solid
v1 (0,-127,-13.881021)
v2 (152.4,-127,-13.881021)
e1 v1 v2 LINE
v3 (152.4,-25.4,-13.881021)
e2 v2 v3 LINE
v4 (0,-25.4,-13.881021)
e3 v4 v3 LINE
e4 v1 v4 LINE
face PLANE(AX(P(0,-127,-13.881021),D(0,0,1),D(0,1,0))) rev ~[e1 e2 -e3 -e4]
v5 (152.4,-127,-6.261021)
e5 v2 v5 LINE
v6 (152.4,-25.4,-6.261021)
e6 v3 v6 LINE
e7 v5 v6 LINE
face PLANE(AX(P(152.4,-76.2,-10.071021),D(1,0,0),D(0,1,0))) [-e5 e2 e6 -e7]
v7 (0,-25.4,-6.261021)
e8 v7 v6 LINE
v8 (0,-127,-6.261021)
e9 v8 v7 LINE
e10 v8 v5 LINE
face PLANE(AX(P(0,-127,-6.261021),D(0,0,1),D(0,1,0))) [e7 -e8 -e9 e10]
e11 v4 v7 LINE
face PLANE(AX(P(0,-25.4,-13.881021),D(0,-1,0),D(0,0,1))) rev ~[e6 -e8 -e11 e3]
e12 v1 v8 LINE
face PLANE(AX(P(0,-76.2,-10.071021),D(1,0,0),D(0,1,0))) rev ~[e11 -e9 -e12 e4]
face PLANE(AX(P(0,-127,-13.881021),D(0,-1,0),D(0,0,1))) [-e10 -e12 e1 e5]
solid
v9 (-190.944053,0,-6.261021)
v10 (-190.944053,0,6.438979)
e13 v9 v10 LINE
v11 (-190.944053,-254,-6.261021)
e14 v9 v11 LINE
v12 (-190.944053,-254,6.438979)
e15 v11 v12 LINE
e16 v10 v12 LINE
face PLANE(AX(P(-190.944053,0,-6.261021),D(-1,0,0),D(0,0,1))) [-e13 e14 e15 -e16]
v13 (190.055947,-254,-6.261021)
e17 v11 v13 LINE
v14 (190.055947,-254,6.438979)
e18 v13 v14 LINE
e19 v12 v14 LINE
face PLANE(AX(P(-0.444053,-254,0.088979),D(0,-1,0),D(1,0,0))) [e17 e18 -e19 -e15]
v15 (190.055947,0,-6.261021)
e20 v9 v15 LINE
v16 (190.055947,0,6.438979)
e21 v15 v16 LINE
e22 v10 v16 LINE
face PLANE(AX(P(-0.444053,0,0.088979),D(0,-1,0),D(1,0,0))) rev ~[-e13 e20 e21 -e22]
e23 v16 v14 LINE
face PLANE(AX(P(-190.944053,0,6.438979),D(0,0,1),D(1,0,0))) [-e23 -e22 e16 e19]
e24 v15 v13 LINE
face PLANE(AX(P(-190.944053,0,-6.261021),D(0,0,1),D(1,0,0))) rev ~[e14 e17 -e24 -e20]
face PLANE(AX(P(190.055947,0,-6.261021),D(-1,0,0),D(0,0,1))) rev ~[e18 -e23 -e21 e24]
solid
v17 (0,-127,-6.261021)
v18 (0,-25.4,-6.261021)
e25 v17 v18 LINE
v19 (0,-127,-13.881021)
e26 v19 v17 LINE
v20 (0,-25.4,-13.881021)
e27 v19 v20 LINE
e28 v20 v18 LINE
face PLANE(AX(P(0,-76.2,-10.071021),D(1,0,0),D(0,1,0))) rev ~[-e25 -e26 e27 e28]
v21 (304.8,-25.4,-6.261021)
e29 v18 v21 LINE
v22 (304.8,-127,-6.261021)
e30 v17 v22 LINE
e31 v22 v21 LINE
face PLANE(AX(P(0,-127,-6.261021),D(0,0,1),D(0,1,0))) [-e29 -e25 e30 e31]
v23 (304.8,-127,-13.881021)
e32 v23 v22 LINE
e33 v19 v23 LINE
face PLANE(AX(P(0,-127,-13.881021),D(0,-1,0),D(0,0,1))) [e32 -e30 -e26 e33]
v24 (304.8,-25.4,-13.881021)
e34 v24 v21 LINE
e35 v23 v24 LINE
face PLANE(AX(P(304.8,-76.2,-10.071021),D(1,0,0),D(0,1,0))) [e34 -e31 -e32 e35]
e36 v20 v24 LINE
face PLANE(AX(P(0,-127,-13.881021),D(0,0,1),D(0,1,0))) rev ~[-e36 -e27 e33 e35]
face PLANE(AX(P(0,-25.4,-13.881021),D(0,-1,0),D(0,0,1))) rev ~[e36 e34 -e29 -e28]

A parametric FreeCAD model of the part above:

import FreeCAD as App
import Part
import Sketcher

V = App.Vector
Q = App.Units.Quantity

doc = App.newDocument("Part")
body = doc.addObject("PartDesign::Body", "Body")

# Sketch on XZ plane
sketch1 = body.newObject("Sketcher::SketchObject", "Sketch")
sketch1.AttachmentSupport = (doc.getObject("XZ_Plane"), [""])
sketch1.MapMode = "FlatFace"
sketch1.addGeometry([
    Part.LineSegment(V(-191, 6, 0), V(-191, -6, 0)),
    Part.LineSegment(V(-191, -6, 0), V(190, -6, 0)),
    Part.LineSegment(V(190, -6, 0), V(190, 6, 0)),
    Part.LineSegment(V(190, 6, 0), V(-191, 6, 0)),
], False)
sketch1.addConstraint([
    Sketcher.Constraint("Coincident", 0, 2, 1, 1),
    Sketcher.Constraint("Coincident", 1, 2, 2, 1),
    Sketcher.Constraint("Coincident", 2, 2, 3, 1),
    Sketcher.Constraint("Coincident", 3, 2, 0, 1),
    Sketcher.Constraint("Vertical", 0),
    Sketcher.Constraint("Horizontal", 1),
    Sketcher.Constraint("Vertical", 2),
    Sketcher.Constraint("Horizontal", 3),
    Sketcher.Constraint("DistanceX", 1, 1, 1, 2, Q("15 in")),
    Sketcher.Constraint("DistanceY", 0, 2, 0, 1, Q("0.5 in")),
    Sketcher.Constraint("DistanceY", 0, 2, -1, 1, Q("6.261021 mm")),
    Sketcher.Constraint("DistanceX", 0, 2, -1, 1, Q("190.944053 mm")),
])
pad1 = body.newObject("PartDesign::Pad", "Pad")
pad1.Profile = sketch1
pad1.Length = Q("10 in")
body2 = doc.addObject("PartDesign::Body", "Body001")

# Sketch on YZ plane
sketch2 = body2.newObject("Sketcher::SketchObject", "Sketch001")
sketch2.AttachmentSupport = (doc.getObject("YZ_Plane001"), [""])
sketch2.MapMode = "FlatFace"
sketch2.addGeometry([
    Part.LineSegment(V(-127, -6, 0), V(-127, -14, 0)),
    Part.LineSegment(V(-127, -14, 0), V(-25, -14, 0)),
    Part.LineSegment(V(-25, -14, 0), V(-25, -6, 0)),
    Part.LineSegment(V(-25, -6, 0), V(-127, -6, 0)),
], False)
sketch2.addConstraint([
    Sketcher.Constraint("Coincident", 0, 2, 1, 1),
    Sketcher.Constraint("Coincident", 1, 2, 2, 1),
    Sketcher.Constraint("Coincident", 2, 2, 3, 1),
    Sketcher.Constraint("Coincident", 3, 2, 0, 1),
    Sketcher.Constraint("Vertical", 0),
    Sketcher.Constraint("Horizontal", 1),
    Sketcher.Constraint("Vertical", 2),
    Sketcher.Constraint("Horizontal", 3),
    Sketcher.Constraint("DistanceX", 1, 1, 1, 2, Q("4 in")),
    Sketcher.Constraint("DistanceY", 0, 2, 0, 1, Q("0.3 in")),
    Sketcher.Constraint("DistanceX", 0, 2, -1, 1, Q("5 in")),
    Sketcher.Constraint("DistanceY", 0, 2, -1, 1, Q("13.881021 mm")),
])
pad2 = body2.newObject("PartDesign::Pad", "Pad001")
pad2.Profile = sketch2
pad2.Length = Q("6 in")
body3 = doc.addObject("PartDesign::Body", "Body002")

# Sketch on YZ plane
sketch3 = body3.newObject("Sketcher::SketchObject", "Sketch002")
sketch3.AttachmentSupport = (doc.getObject("YZ_Plane002"), [""])
sketch3.MapMode = "FlatFace"
sketch3.addGeometry([
    Part.LineSegment(V(-127, -6, 0), V(-127, -14, 0)),
    Part.LineSegment(V(-127, -14, 0), V(-25, -14, 0)),
    Part.LineSegment(V(-25, -14, 0), V(-25, -6, 0)),
    Part.LineSegment(V(-25, -6, 0), V(-127, -6, 0)),
], False)
sketch3.addConstraint([
    Sketcher.Constraint("Coincident", 0, 2, 1, 1),
    Sketcher.Constraint("Coincident", 1, 2, 2, 1),
    Sketcher.Constraint("Coincident", 2, 2, 3, 1),
    Sketcher.Constraint("Coincident", 3, 2, 0, 1),
    Sketcher.Constraint("Vertical", 0),
    Sketcher.Constraint("Horizontal", 1),
    Sketcher.Constraint("Vertical", 2),
    Sketcher.Constraint("Horizontal", 3),
    Sketcher.Constraint("DistanceX", 1, 1, 1, 2, Q("4 in")),
    Sketcher.Constraint("DistanceY", 0, 2, 0, 1, Q("0.3 in")),
    Sketcher.Constraint("DistanceX", 0, 2, -1, 1, Q("5 in")),
    Sketcher.Constraint("DistanceY", 0, 2, -1, 1, Q("13.881021 mm")),
])
pad3 = body3.newObject("PartDesign::Pad", "Pad002")
pad3.Profile = sketch3
pad3.Length = Q("12 in")

doc.recompute()
